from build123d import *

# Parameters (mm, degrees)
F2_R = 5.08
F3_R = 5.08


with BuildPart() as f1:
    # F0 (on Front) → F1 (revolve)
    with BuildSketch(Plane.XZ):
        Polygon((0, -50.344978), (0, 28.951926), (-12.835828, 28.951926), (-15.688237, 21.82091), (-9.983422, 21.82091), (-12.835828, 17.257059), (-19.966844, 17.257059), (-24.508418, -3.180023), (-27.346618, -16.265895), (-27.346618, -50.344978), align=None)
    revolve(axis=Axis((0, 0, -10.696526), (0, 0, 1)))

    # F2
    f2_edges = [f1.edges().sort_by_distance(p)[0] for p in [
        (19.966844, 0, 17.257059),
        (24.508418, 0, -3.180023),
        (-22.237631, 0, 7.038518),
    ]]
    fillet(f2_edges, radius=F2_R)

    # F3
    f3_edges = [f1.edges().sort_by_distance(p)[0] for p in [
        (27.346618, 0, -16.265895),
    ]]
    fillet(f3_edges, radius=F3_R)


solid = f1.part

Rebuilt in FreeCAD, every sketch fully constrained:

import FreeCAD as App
import Part
import Sketcher

V = App.Vector
Q = App.Units.Quantity


def edges_at(feature, points):
    """Names of the edges that pass closest to the given points."""
    edges = feature.Shape.Edges
    near = lambda p: min(range(len(edges)), key=lambda i: edges[i].distToShape(Part.Vertex(*p))[0])
    return sorted({f"Edge{near(p) + 1}" for p in points})

doc = App.newDocument("Part")
body = doc.addObject("PartDesign::Body", "Body")

# Sketch on XZ plane
sketch1 = doc.addObject("Sketcher::SketchObject", "Sketch")
body.addObject(sketch1)
sketch1.AttachmentSupport = (doc.XZ_Plane, [""])
sketch1.MapMode = "FlatFace"
sketch1.addGeometry([
    Part.LineSegment(V(0, -50, 0), V(0, 29, 0)),  # 0
    Part.LineSegment(V(0, 29, 0), V(-13, 29, 0)),  # 1
    Part.LineSegment(V(-13, 29, 0), V(-16, 22, 0)),  # 2
    Part.LineSegment(V(-16, 22, 0), V(-10, 22, 0)),  # 3
    Part.LineSegment(V(-10, 22, 0), V(-13, 17, 0)),  # 4
    Part.LineSegment(V(-13, 17, 0), V(-20, 17, 0)),  # 5
    Part.LineSegment(V(-20, 17, 0), V(-25, -3, 0)),  # 6
    Part.LineSegment(V(-25, -3, 0), V(-27, -16, 0)),  # 7
    Part.LineSegment(V(-27, -16, 0), V(-27, -50, 0)),  # 8
    Part.LineSegment(V(-27, -50, 0), V(0, -50, 0)),  # 9
], False)
sketch1.addConstraint([
    Sketcher.Constraint("Coincident", 0, 2, 1, 1),
    Sketcher.Constraint("Coincident", 1, 2, 2, 1),
    Sketcher.Constraint("Coincident", 2, 2, 3, 1),
    Sketcher.Constraint("Coincident", 3, 2, 4, 1),
    Sketcher.Constraint("Coincident", 4, 2, 5, 1),
    Sketcher.Constraint("Coincident", 5, 2, 6, 1),
    Sketcher.Constraint("Coincident", 6, 2, 7, 1),
    Sketcher.Constraint("Coincident", 7, 2, 8, 1),
    Sketcher.Constraint("Coincident", 8, 2, 9, 1),
    Sketcher.Constraint("Coincident", 9, 2, 0, 1),
    Sketcher.Constraint("Vertical", 0),
    Sketcher.Constraint("Horizontal", 1),
    Sketcher.Constraint("Horizontal", 3),
    Sketcher.Constraint("Horizontal", 5),
    Sketcher.Constraint("Vertical", 8),
    Sketcher.Constraint("Horizontal", 9),
    Sketcher.Constraint("PointOnObject", 0, 2, -2),
    Sketcher.Constraint("Vertical", 1, 2, 4, 2),
    Sketcher.Constraint("DistanceX", 7, 2, 6, 2, 2.8382),
    Sketcher.Constraint("Distance", 2, 7.68034),
    Sketcher.Constraint("Distance", 4, 5.38191),
    Sketcher.Constraint("Distance", 6, 20.935621),
    Sketcher.Constraint("DistanceX", 1, 2, 1, 1, 12.835828),
    Sketcher.Constraint("DistanceX", 3, 1, 3, 2, 5.704815),
    Sketcher.Constraint("DistanceX", 5, 2, 5, 1, 7.131016),
    Sketcher.Constraint("DistanceX", 9, 1, 9, 2, 27.346618),
    Sketcher.Constraint("DistanceY", 0, 1, 0, 2, 79.296904),
    Sketcher.Constraint("DistanceY", 8, 2, 8, 1, 34.079083),
    Sketcher.Constraint("DistanceY", -1, 1, 2, 2, 21.82091),
    Sketcher.Constraint("DistanceX", 3, 2, -1, 1, 9.983422),
])
revolution = doc.addObject("PartDesign::Revolution", "Revolution")
body.addObject(revolution)
revolution.Profile = sketch1
revolution.ReferenceAxis = (sketch1, ["V_Axis"])
revolution.Angle = 360
doc.recompute()

fillet = doc.addObject("PartDesign::Fillet", "Fillet")
body.addObject(fillet)
fillet.Base = (revolution, edges_at(revolution, [(19.967, 0, 17.257), (24.508, 0, -3.18), (-22.238, 0, 7.039)]))
fillet.Radius = Q("0.2 in")
doc.recompute()

fillet2 = doc.addObject("PartDesign::Fillet", "Fillet001")
body.addObject(fillet2)
fillet2.Base = (fillet, edges_at(fillet, [(27.347, 0, -16.266)]))
fillet2.Radius = Q("0.2 in")

doc.recompute()
